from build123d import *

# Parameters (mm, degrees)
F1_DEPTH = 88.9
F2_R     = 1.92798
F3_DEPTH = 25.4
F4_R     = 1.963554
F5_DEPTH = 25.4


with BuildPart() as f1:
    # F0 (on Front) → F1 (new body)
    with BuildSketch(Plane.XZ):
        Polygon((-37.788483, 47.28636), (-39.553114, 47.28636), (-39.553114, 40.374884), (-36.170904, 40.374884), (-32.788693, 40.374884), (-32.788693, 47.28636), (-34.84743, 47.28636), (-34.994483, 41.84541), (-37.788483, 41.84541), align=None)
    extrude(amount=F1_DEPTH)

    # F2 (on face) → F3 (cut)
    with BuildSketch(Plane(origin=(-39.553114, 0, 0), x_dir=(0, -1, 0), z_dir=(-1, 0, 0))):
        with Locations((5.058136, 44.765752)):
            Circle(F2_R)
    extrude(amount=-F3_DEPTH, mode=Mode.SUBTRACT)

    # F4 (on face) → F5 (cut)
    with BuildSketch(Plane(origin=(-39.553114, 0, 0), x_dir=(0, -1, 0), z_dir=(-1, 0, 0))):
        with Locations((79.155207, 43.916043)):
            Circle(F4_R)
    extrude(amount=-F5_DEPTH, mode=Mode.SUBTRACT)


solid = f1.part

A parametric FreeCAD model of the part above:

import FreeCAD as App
import Part
import Sketcher
Q = App.Units.Quantity

doc = App.newDocument("Part")
body = doc.addObject("PartDesign::Body", "Body")

# Sketch on XZ plane
sketch1 = body.newObject("Sketcher::SketchObject", "Sketch")
sketch1.AttachmentSupport = (doc.getObject("XZ_Plane"), [""])
sketch1.MapMode = "FlatFace"
sketch1.addGeometry([
    Part.LineSegment(App.Vector(-37.8, 47.3, 0), App.Vector(-39.6, 47.3, 0)),  # 0
    Part.LineSegment(App.Vector(-39.6, 47.3, 0), App.Vector(-39.6, 40.4, 0)),  # 1
    Part.LineSegment(App.Vector(-39.6, 40.4, 0), App.Vector(-32.8, 40.4, 0)),  # 2
    Part.LineSegment(App.Vector(-32.8, 40.4, 0), App.Vector(-32.8, 47.3, 0)),  # 3
    Part.LineSegment(App.Vector(-32.8, 47.3, 0), App.Vector(-34.8, 47.3, 0)),  # 4
    Part.LineSegment(App.Vector(-34.8, 47.3, 0), App.Vector(-35, 41.8, 0)),  # 5
    Part.LineSegment(App.Vector(-35, 41.8, 0), App.Vector(-37.8, 41.8, 0)),  # 6
    Part.LineSegment(App.Vector(-37.8, 41.8, 0), App.Vector(-37.8, 47.3, 0)),  # 7
], False)
sketch1.addConstraint([
    Sketcher.Constraint("Coincident", 0, 2, 1, 1),
    Sketcher.Constraint("Coincident", 1, 2, 2, 1),
    Sketcher.Constraint("Coincident", 2, 2, 3, 1),
    Sketcher.Constraint("Coincident", 3, 2, 4, 1),
    Sketcher.Constraint("Coincident", 4, 2, 5, 1),
    Sketcher.Constraint("Coincident", 5, 2, 6, 1),
    Sketcher.Constraint("Coincident", 6, 2, 7, 1),
    Sketcher.Constraint("Coincident", 7, 2, 0, 1),
    Sketcher.Constraint("Horizontal", 0),
    Sketcher.Constraint("Vertical", 1),
    Sketcher.Constraint("Horizontal", 2),
    Sketcher.Constraint("Vertical", 3),
    Sketcher.Constraint("Horizontal", 4),
    Sketcher.Constraint("Horizontal", 6),
    Sketcher.Constraint("Vertical", 7),
    Sketcher.Constraint("Horizontal", 0, 2, 3, 2),
    Sketcher.Constraint("DistanceX", 6, 2, 6, 1, Q("0.11 in")),
    Sketcher.Constraint("DistanceX", 0, 2, 0, 1, Q("1.764631 mm")),
    Sketcher.Constraint("DistanceX", 2, 1, 2, 2, Q("6.764421 mm")),
    Sketcher.Constraint("DistanceY", 7, 1, 7, 2, Q("5.44095 mm")),
    Sketcher.Constraint("DistanceX", 4, 2, 4, 1, Q("2.058737 mm")),
    Sketcher.Constraint("DistanceY", 1, 2, 1, 1, Q("6.911476 mm")),
    Sketcher.Constraint("DistanceY", -1, 1, 0, 2, Q("47.28636 mm")),
    Sketcher.Constraint("DistanceX", 4, 2, -1, 1, Q("34.84743 mm")),
])
pad1 = body.newObject("PartDesign::Pad", "Pad")
pad1.Profile = sketch1
pad1.Length = Q("3.5 in")

# Sketch on YZ plane
sketch2 = body.newObject("Sketcher::SketchObject", "Sketch001")
sketch2.AttachmentSupport = (doc.getObject("YZ_Plane"), [""])
sketch2.MapMode = "FlatFace"
sketch2.AttachmentOffset = App.Placement(App.Vector(0, 0, -39.553114), App.Rotation())
sketch2.addGeometry(Part.Circle(App.Vector(-5.1, 44.8, 0), App.Vector(0, 0, 1), 1.9), False)
sketch2.addConstraint([
    Sketcher.Constraint("Diameter", 0, Q("3.85596 mm")),
    Sketcher.Constraint("DistanceX", 0, 3, -1, 1, Q("5.058136 mm")),
    Sketcher.Constraint("DistanceY", -1, 1, 0, 3, Q("44.765752 mm")),
])
pocket1 = body.newObject("PartDesign::Pocket", "Pocket")
pocket1.Profile = sketch2
pocket1.Length = Q("1 in")
pocket1.Reversed = True

# Sketch on YZ plane
sketch3 = body.newObject("Sketcher::SketchObject", "Sketch002")
sketch3.AttachmentSupport = (doc.getObject("YZ_Plane"), [""])
sketch3.MapMode = "FlatFace"
sketch3.AttachmentOffset = App.Placement(App.Vector(0, 0, -39.553114), App.Rotation())
sketch3.addGeometry(Part.Circle(App.Vector(-79.2, 43.9, 0), App.Vector(0, 0, 1), 2), False)
sketch3.addConstraint([
    Sketcher.Constraint("Diameter", 0, Q("3.927108 mm")),
    Sketcher.Constraint("DistanceX", 0, 3, -1, 1, Q("79.155207 mm")),
    Sketcher.Constraint("DistanceY", -1, 1, 0, 3, Q("43.916043 mm")),
])
pocket2 = body.newObject("PartDesign::Pocket", "Pocket001")
pocket2.Profile = sketch3
pocket2.Length = Q("1 in")
pocket2.Reversed = True

doc.recompute()
